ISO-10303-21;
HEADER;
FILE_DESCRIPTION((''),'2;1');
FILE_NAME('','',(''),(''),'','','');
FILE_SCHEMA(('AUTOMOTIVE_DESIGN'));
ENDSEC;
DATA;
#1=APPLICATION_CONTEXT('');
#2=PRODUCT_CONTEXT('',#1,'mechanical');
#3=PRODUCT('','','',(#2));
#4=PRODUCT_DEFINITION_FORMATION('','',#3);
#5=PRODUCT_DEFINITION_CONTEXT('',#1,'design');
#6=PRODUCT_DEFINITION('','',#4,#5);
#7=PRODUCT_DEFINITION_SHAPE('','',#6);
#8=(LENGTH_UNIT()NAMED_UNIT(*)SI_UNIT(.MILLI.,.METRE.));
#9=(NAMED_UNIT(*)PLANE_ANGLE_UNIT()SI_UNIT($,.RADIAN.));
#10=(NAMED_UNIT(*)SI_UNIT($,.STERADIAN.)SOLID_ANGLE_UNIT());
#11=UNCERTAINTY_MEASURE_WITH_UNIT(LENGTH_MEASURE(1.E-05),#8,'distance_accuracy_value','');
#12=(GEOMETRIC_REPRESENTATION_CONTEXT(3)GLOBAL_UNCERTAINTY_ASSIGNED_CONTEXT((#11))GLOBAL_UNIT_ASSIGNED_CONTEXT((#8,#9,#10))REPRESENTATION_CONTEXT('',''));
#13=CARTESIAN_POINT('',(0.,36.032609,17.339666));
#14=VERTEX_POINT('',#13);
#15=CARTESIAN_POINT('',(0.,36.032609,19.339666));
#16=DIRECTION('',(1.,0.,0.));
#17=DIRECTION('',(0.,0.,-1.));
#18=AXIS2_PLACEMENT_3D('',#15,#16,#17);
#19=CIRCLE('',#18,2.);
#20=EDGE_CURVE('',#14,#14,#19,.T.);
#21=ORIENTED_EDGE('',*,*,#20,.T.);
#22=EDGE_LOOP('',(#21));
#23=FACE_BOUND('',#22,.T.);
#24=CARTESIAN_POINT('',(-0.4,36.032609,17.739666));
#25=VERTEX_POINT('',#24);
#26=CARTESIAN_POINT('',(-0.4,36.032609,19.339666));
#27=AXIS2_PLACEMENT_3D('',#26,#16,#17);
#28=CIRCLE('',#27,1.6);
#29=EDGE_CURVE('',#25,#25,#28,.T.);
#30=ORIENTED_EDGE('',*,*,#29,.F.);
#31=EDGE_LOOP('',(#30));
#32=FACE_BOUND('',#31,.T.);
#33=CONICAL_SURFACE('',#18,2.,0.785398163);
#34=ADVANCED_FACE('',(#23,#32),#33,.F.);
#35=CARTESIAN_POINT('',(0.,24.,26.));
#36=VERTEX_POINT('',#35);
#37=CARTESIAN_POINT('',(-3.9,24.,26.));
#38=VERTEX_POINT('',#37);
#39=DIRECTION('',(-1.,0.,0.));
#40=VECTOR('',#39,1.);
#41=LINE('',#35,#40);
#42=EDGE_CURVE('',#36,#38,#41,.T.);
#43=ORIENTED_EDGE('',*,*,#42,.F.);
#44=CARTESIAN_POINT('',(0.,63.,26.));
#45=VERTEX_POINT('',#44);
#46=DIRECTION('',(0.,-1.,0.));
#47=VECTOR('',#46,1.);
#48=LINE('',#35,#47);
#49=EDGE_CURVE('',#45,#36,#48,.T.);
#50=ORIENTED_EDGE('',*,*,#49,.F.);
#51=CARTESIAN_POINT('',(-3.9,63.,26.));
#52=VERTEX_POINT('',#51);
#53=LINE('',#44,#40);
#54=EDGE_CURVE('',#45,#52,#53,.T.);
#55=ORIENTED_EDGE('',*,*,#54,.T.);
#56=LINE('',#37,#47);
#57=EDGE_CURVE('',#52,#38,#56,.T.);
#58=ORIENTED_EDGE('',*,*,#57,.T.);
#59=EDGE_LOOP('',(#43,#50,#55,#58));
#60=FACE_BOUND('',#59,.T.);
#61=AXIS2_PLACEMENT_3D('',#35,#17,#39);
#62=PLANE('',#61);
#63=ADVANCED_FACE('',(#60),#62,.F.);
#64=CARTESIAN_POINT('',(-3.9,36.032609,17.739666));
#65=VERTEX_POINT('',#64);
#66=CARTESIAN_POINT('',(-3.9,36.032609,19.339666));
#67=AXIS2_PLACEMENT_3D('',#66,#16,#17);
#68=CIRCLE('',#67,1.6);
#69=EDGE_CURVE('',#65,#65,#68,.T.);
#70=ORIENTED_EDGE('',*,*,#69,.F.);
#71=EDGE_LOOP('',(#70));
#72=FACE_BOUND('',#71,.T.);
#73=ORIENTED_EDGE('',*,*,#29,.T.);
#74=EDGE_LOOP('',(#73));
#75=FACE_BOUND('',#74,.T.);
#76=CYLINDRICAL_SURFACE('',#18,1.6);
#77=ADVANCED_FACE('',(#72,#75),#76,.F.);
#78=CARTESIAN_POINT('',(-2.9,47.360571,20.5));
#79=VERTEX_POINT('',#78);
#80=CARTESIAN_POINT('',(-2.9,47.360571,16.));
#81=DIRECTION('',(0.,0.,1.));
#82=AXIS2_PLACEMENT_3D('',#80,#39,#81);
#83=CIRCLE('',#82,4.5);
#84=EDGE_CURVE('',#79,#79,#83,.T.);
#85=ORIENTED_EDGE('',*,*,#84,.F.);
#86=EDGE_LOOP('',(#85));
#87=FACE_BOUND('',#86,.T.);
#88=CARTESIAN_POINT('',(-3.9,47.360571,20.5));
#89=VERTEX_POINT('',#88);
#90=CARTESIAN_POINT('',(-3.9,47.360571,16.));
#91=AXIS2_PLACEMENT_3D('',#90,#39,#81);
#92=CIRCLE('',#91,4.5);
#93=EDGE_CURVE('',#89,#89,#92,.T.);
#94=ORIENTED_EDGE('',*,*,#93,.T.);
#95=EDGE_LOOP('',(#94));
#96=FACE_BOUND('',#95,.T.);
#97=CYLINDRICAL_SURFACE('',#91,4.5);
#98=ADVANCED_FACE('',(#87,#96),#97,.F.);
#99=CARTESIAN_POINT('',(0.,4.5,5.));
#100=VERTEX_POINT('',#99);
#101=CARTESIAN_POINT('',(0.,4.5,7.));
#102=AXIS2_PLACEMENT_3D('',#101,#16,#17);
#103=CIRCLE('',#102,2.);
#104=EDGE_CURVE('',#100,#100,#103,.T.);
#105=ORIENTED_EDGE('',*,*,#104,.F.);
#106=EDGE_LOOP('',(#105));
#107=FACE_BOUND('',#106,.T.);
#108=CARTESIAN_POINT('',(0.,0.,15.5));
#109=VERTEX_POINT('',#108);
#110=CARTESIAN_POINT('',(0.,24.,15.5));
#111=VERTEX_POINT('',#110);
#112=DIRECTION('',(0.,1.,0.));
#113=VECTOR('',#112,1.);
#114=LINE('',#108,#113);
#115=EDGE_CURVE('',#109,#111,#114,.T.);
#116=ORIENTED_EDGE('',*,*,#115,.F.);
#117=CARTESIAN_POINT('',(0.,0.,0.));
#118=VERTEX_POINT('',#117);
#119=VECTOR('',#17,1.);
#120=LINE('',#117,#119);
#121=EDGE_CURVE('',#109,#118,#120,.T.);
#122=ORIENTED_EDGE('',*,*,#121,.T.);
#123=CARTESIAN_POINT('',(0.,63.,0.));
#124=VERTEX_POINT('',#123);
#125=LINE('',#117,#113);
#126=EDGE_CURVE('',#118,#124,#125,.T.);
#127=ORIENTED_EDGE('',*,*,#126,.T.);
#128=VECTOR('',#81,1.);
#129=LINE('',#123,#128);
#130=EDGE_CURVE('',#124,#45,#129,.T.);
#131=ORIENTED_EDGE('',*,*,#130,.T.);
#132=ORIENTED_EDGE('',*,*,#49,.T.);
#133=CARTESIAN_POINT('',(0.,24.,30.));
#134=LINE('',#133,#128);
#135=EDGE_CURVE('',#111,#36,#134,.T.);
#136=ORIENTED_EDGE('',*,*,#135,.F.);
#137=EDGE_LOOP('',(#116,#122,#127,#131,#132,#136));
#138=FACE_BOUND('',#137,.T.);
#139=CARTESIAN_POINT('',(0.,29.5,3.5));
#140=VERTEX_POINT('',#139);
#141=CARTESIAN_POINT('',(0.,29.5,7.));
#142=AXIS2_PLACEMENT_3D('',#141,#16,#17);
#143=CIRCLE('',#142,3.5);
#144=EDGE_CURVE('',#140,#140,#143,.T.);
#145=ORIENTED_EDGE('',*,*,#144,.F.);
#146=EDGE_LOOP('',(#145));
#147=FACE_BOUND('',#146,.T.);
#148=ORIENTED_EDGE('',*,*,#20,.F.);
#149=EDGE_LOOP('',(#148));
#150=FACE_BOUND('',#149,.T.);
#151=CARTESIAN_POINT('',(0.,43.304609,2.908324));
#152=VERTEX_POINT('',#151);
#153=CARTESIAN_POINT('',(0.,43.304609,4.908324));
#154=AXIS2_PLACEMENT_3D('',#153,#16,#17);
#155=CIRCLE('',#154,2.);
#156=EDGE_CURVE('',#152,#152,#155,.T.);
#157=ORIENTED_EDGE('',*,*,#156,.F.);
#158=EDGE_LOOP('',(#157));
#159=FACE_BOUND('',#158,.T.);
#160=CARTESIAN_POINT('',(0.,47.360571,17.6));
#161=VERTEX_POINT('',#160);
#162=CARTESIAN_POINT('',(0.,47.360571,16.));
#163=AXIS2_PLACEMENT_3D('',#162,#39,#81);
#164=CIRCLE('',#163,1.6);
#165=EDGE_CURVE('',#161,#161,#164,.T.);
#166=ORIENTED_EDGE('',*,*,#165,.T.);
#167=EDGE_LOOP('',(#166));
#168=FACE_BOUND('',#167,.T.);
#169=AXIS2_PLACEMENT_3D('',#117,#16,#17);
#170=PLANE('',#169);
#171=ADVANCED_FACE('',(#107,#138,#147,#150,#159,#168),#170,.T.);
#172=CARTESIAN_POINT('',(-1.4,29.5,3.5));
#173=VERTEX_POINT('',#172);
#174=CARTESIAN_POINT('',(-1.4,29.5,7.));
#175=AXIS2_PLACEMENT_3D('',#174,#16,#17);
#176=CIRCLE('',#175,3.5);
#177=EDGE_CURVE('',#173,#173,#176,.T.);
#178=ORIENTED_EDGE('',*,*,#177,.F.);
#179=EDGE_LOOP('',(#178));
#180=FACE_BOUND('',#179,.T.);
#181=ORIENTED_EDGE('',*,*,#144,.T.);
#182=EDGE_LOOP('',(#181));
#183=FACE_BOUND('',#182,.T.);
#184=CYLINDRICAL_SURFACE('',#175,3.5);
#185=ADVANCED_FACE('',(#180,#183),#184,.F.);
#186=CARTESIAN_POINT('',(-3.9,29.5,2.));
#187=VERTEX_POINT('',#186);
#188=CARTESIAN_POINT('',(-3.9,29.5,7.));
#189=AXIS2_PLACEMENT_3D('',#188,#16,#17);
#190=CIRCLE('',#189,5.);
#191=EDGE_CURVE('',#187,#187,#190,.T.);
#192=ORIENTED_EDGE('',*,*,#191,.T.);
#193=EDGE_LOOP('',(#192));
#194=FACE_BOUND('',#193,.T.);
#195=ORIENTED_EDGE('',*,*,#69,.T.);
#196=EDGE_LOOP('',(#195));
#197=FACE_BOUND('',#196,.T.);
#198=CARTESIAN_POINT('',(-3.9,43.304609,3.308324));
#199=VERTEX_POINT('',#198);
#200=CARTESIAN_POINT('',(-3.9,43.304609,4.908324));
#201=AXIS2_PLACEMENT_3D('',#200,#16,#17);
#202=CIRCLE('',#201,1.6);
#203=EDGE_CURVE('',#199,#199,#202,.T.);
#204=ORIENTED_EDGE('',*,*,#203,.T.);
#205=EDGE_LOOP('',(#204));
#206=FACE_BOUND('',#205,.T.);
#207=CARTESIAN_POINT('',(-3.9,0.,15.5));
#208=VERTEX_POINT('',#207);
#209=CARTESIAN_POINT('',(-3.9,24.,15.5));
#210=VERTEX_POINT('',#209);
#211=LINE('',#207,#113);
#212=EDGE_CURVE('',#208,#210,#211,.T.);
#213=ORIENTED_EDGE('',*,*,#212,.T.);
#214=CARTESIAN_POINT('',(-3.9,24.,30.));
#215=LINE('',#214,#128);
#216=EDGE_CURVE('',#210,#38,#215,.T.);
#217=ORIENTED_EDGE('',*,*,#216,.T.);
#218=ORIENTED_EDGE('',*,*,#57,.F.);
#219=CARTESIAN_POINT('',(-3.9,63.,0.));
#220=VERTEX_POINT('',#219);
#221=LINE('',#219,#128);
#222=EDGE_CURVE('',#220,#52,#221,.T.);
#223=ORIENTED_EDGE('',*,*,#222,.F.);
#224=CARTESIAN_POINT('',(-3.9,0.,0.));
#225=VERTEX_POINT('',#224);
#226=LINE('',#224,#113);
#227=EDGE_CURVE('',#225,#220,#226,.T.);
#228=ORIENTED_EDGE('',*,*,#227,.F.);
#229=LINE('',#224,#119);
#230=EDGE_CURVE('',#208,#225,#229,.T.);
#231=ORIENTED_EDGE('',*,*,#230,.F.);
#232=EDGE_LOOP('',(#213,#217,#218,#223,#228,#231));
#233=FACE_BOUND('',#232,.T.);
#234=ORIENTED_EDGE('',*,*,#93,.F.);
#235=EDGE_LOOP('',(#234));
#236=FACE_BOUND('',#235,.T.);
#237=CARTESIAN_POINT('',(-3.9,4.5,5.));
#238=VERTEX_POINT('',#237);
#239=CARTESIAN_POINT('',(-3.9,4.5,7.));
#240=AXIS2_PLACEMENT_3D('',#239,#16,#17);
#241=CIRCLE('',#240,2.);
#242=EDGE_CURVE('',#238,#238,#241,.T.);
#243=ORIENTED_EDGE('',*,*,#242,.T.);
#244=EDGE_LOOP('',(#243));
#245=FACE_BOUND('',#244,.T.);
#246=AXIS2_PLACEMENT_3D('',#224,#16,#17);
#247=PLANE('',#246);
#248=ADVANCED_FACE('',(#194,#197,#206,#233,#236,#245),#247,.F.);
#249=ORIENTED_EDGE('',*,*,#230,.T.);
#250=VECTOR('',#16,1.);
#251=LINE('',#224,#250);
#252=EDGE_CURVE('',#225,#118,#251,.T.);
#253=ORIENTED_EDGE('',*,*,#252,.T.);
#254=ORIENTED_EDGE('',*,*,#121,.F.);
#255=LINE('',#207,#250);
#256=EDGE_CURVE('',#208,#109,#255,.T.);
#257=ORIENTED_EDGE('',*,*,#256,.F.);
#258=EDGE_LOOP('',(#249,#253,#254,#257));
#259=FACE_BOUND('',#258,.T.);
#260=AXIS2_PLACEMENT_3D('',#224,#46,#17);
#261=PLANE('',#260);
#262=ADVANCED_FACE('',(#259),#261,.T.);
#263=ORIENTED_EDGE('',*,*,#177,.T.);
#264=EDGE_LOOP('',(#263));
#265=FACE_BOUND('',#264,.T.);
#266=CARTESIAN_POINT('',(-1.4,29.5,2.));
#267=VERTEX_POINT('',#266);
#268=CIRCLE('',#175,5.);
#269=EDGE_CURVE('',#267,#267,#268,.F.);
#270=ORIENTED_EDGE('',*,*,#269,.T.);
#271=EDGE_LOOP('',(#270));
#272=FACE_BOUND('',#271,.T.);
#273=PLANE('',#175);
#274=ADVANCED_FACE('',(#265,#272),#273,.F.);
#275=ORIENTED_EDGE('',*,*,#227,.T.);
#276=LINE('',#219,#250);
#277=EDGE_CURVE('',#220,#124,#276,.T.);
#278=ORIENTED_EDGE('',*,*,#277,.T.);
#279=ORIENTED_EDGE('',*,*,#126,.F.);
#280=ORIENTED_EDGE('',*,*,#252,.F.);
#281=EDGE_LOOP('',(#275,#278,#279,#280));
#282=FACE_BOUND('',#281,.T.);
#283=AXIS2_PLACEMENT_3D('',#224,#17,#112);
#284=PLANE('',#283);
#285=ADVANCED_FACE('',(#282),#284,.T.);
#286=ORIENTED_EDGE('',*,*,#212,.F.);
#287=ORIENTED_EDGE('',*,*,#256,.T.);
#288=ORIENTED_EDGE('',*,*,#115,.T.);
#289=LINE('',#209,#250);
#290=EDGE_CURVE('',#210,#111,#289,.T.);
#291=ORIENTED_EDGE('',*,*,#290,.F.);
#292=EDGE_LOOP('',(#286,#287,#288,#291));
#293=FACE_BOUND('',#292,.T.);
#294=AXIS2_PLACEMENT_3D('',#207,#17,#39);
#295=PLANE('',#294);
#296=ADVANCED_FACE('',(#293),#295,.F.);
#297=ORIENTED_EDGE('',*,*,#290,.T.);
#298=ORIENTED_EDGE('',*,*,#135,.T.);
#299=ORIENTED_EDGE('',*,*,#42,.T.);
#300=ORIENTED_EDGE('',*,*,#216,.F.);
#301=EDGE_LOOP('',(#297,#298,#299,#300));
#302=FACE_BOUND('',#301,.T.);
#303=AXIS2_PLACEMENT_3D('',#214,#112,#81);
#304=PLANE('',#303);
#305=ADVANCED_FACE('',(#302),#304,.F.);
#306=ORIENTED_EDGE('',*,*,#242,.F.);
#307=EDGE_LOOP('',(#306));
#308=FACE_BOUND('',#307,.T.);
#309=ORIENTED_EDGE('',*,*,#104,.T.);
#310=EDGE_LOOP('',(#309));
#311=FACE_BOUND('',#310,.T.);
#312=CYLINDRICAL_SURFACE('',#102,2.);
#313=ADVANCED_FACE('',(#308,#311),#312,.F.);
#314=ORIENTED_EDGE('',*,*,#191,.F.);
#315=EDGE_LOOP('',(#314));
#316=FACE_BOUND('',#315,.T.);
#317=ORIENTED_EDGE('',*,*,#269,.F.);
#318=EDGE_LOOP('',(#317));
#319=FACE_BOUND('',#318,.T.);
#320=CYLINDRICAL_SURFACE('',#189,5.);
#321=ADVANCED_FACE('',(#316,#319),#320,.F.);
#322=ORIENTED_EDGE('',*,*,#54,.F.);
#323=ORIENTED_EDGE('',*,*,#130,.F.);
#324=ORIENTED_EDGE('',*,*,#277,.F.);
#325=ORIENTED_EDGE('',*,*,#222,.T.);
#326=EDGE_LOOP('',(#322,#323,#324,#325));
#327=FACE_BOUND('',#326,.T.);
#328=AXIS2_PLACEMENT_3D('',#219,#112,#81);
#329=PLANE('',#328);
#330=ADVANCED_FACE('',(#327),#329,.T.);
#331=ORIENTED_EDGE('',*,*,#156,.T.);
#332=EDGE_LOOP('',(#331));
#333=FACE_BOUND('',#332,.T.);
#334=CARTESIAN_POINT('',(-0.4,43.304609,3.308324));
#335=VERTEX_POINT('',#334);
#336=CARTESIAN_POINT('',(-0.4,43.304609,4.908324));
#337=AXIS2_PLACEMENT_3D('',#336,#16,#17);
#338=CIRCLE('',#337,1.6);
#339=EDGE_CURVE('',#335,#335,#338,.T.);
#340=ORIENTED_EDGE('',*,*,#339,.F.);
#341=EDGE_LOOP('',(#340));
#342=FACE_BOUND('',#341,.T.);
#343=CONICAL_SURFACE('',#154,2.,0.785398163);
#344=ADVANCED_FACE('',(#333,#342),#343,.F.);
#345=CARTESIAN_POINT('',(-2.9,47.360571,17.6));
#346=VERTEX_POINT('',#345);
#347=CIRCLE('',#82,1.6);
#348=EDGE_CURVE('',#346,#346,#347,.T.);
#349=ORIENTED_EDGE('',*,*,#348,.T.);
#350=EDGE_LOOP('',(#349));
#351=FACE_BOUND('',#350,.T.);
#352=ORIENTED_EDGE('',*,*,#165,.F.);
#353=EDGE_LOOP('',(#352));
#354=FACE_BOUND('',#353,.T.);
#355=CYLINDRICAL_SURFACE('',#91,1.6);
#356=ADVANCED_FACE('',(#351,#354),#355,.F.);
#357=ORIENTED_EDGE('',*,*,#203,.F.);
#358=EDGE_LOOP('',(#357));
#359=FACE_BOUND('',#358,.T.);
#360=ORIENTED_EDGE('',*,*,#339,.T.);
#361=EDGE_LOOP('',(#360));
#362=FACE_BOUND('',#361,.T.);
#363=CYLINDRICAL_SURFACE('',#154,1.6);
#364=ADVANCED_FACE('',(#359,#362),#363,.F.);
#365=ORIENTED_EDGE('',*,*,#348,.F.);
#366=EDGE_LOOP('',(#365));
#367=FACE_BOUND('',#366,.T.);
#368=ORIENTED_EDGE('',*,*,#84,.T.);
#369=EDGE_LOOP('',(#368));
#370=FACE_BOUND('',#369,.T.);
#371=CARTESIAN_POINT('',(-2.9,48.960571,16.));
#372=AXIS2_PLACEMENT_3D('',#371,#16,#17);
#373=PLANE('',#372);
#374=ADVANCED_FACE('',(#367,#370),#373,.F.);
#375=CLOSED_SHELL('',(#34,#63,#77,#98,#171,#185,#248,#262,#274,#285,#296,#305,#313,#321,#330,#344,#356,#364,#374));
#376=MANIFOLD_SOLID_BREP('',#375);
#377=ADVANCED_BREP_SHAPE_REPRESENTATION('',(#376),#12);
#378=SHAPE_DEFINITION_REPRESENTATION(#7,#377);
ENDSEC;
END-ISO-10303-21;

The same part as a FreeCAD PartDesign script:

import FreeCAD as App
import Part
import Sketcher

V = App.Vector
Q = App.Units.Quantity


def add_polygon(sketch, points):
    """Adds a closed chain of lines whose ends are joined by coincident constraints."""
    first, n = sketch.GeometryCount, len(points)
    for a, b in zip(points, points[1:] + points[:1]):
        sketch.addGeometry(Part.LineSegment(App.Vector(*a, 0), App.Vector(*b, 0)), False)
    for i in range(n):
        sketch.addConstraint(Sketcher.Constraint("Coincident", first + i, 2, first + (i + 1) % n, 1))

doc = App.newDocument("Part")
body = doc.addObject("PartDesign::Body", "Body")

# Sketch on YZ plane
sketch1 = body.newObject("Sketcher::SketchObject", "Sketch")
sketch1.AttachmentSupport = (doc.getObject("YZ_Plane"), [""])
sketch1.MapMode = "FlatFace"
add_polygon(sketch1, [(63, 30), (0, 30), (0, 0), (63, 0)])  # lines 0-3
sketch1.addConstraint(Sketcher.Constraint("Horizontal", 0))
sketch1.addConstraint(Sketcher.Constraint("Vertical", 1))
sketch1.addConstraint(Sketcher.Constraint("Horizontal", 2))
sketch1.addConstraint(Sketcher.Constraint("Vertical", 3))
sketch1.addConstraint(Sketcher.Constraint("Coincident", 1, 2, -1, 1))
sketch1.addConstraint(Sketcher.Constraint("DistanceX", 0, 2, 0, 1, Q("63 mm")))
sketch1.addConstraint(Sketcher.Constraint("DistanceY", 1, 2, 1, 1, Q("30 mm")))
pad1 = body.newObject("PartDesign::Pad", "Pad")
pad1.Profile = sketch1
pad1.Length = 3.9
pad1.Reversed = True

# Sketch on YZ plane
sketch2 = body.newObject("Sketcher::SketchObject", "Sketch001")
sketch2.AttachmentSupport = (doc.getObject("YZ_Plane"), [""])
sketch2.MapMode = "FlatFace"
sketch2.addGeometry(Part.Circle(V(30, 7, 0), V(0, 0, 1), 5), False)
sketch2.addConstraint(Sketcher.Constraint("Diameter", 0, Q("10 mm")))
sketch2.addConstraint(Sketcher.Constraint("DistanceY", -1, 1, 0, 3, Q("7 mm")))
sketch2.addConstraint(Sketcher.Constraint("DistanceX", -1, 1, 0, 3, Q("29.5 mm")))
pocket1 = body.newObject("PartDesign::Pocket", "Pocket")
pocket1.Profile = sketch2
pocket1.Type = "ThroughAll"

# Sketch on YZ plane
sketch3 = body.newObject("Sketcher::SketchObject", "Sketch002")
sketch3.AttachmentSupport = (doc.getObject("YZ_Plane"), [""])
sketch3.MapMode = "FlatFace"
sketch3.addGeometry(Part.Circle(V(4.5, 7, 0), V(0, 0, 1), 2), False)
sketch3.addConstraint(Sketcher.Constraint("Diameter", 0, Q("4 mm")))
sketch3.addConstraint(Sketcher.Constraint("DistanceY", -1, 1, 0, 3, Q("7 mm")))
sketch3.addConstraint(Sketcher.Constraint("DistanceX", -1, 1, 0, 3, Q("4.5 mm")))
doc.recompute()
hole = body.newObject("PartDesign::Hole", "Hole")
hole.Profile = sketch3
hole.ThreadType = "None"
hole.Diameter = 4
hole.DepthType = "ThroughAll"

# Sketch on YZ plane
sketch4 = body.newObject("Sketcher::SketchObject", "Sketch003")
sketch4.AttachmentSupport = (doc.getObject("YZ_Plane"), [""])
sketch4.MapMode = "FlatFace"
add_polygon(sketch4, [(24, 30), (0, 30), (0, 16), (24, 16)])  # lines 0-3
sketch4.addConstraint(Sketcher.Constraint("Horizontal", 0))
sketch4.addConstraint(Sketcher.Constraint("Vertical", 1))
sketch4.addConstraint(Sketcher.Constraint("Horizontal", 2))
sketch4.addConstraint(Sketcher.Constraint("Vertical", 3))
sketch4.addConstraint(Sketcher.Constraint("PointOnObject", 0, 2, -2))
sketch4.addConstraint(Sketcher.Constraint("DistanceX", 0, 2, 0, 1, Q("24 mm")))
sketch4.addConstraint(Sketcher.Constraint("DistanceY", 1, 2, 1, 1, Q("14.5 mm")))
sketch4.addConstraint(Sketcher.Constraint("DistanceY", -1, 1, 0, 2, Q("30 mm")))
pocket2 = body.newObject("PartDesign::Pocket", "Pocket001")
pocket2.Profile = sketch4
pocket2.Type = "ThroughAll"

# Sketch on YZ plane
sketch5 = body.newObject("Sketcher::SketchObject", "Sketch004")
sketch5.AttachmentSupport = (doc.getObject("YZ_Plane"), [""])
sketch5.MapMode = "FlatFace"
sketch5.AttachmentOffset = App.Placement(V(0, 0, -3.9), App.Rotation())
sketch5.addGeometry(Part.Circle(V(47.4, 16, 0), V(0, 0, 1), 1.6), False)
sketch5.addConstraint(Sketcher.Constraint("Diameter", 0, Q("3.2 mm")))
sketch5.addConstraint(Sketcher.Constraint("DistanceY", -1, 1, 0, 3, Q("16 mm")))
sketch5.addConstraint(Sketcher.Constraint("DistanceX", -1, 1, 0, 3, Q("47.360571 mm")))
doc.recompute()
hole2 = body.newObject("PartDesign::Hole", "Hole001")
hole2.Profile = sketch5
hole2.ThreadType = "None"
hole2.Diameter = 3.2
hole2.DepthType = "ThroughAll"
hole2.HoleCutType = "Counterbore"
hole2.HoleCutDiameter = 9
hole2.HoleCutDepth = 1
hole2.Reversed = True

# Sketch on YZ plane
sketch6 = body.newObject("Sketcher::SketchObject", "Sketch005")
sketch6.AttachmentSupport = (doc.getObject("YZ_Plane"), [""])
sketch6.MapMode = "FlatFace"
sketch6.addGeometry(Part.Circle(V(36, 19.3, 0), V(0, 0, 1), 1.6), False)
sketch6.addGeometry(Part.Circle(V(43.3, 4.9, 0), V(0, 0, 1), 1.6), False)
sketch6.addConstraint(Sketcher.Constraint("Equal", 0, 1))
sketch6.addConstraint(Sketcher.Constraint("Diameter", 0, Q("3.2 mm")))
sketch6.addConstraint(Sketcher.Constraint("DistanceX", 0, 3, 1, 3, Q("7.272 mm")))
sketch6.addConstraint(Sketcher.Constraint("DistanceX", -1, 1, 0, 3, Q("36.032609 mm")))
sketch6.addConstraint(Sketcher.Constraint("DistanceY", 1, 3, 0, 3, Q("14.431341 mm")))
sketch6.addConstraint(Sketcher.Constraint("DistanceY", -1, 1, 0, 3, Q("19.339666 mm")))
doc.recompute()
hole3 = body.newObject("PartDesign::Hole", "Hole002")
hole3.Profile = sketch6
hole3.ThreadType = "None"
hole3.Diameter = 3.2
hole3.DepthType = "ThroughAll"
hole3.HoleCutType = "Countersink"
hole3.HoleCutDiameter = 4
hole3.HoleCutCountersinkAngle = 90

# Sketch on YZ plane
sketch7 = body.newObject("Sketcher::SketchObject", "Sketch006")
sketch7.AttachmentSupport = (doc.getObject("YZ_Plane"), [""])
sketch7.MapMode = "FlatFace"
sketch7.AttachmentOffset = App.Placement(V(0, 0, -3.9), App.Rotation())
add_polygon(sketch7, [(63, 26), (24, 26), (24, 30), (63, 30)])  # lines 0-3
sketch7.addConstraint(Sketcher.Constraint("Horizontal", 0))
sketch7.addConstraint(Sketcher.Constraint("Vertical", 1))
sketch7.addConstraint(Sketcher.Constraint("Horizontal", 2))
sketch7.addConstraint(Sketcher.Constraint("Vertical", 3))
sketch7.addConstraint(Sketcher.Constraint("DistanceX", 0, 2, 0, 1, Q("39 mm")))
sketch7.addConstraint(Sketcher.Constraint("DistanceY", 1, 1, 1, 2, Q("4 mm")))
sketch7.addConstraint(Sketcher.Constraint("DistanceX", -1, 1, 0, 2, Q("24 mm")))
sketch7.addConstraint(Sketcher.Constraint("DistanceY", -1, 1, 0, 2, Q("26 mm")))
pocket3 = body.newObject("PartDesign::Pocket", "Pocket002")
pocket3.Profile = sketch7
pocket3.Type = "ThroughAll"
pocket3.Reversed = True

# Sketch on YZ plane
sketch8 = body.newObject("Sketcher::SketchObject", "Sketch007")
sketch8.AttachmentSupport = (doc.getObject("YZ_Plane"), [""])
sketch8.MapMode = "FlatFace"
sketch8.addGeometry(Part.Circle(V(29.5, 7, 0), V(0, 0, 1), 5), False)
sketch8.addGeometry(Part.Circle(V(29.5, 7, 0), V(0, 0, 1), 3.5), False)
sketch8.addConstraint(Sketcher.Constraint("Coincident", 1, 3, 0, 3))
sketch8.addConstraint(Sketcher.Constraint("Diameter", 0, Q("10 mm")))
sketch8.addConstraint(Sketcher.Constraint("Diameter", 1, Q("7 mm")))
sketch8.addConstraint(Sketcher.Constraint("DistanceY", -1, 1, 0, 3, Q("7 mm")))
sketch8.addConstraint(Sketcher.Constraint("DistanceX", -1, 1, 0, 3, Q("29.5 mm")))
pad2 = body.newObject("PartDesign::Pad", "Pad001")
pad2.Profile = sketch8
pad2.Length = 1.4
pad2.Reversed = True

doc.recompute()
